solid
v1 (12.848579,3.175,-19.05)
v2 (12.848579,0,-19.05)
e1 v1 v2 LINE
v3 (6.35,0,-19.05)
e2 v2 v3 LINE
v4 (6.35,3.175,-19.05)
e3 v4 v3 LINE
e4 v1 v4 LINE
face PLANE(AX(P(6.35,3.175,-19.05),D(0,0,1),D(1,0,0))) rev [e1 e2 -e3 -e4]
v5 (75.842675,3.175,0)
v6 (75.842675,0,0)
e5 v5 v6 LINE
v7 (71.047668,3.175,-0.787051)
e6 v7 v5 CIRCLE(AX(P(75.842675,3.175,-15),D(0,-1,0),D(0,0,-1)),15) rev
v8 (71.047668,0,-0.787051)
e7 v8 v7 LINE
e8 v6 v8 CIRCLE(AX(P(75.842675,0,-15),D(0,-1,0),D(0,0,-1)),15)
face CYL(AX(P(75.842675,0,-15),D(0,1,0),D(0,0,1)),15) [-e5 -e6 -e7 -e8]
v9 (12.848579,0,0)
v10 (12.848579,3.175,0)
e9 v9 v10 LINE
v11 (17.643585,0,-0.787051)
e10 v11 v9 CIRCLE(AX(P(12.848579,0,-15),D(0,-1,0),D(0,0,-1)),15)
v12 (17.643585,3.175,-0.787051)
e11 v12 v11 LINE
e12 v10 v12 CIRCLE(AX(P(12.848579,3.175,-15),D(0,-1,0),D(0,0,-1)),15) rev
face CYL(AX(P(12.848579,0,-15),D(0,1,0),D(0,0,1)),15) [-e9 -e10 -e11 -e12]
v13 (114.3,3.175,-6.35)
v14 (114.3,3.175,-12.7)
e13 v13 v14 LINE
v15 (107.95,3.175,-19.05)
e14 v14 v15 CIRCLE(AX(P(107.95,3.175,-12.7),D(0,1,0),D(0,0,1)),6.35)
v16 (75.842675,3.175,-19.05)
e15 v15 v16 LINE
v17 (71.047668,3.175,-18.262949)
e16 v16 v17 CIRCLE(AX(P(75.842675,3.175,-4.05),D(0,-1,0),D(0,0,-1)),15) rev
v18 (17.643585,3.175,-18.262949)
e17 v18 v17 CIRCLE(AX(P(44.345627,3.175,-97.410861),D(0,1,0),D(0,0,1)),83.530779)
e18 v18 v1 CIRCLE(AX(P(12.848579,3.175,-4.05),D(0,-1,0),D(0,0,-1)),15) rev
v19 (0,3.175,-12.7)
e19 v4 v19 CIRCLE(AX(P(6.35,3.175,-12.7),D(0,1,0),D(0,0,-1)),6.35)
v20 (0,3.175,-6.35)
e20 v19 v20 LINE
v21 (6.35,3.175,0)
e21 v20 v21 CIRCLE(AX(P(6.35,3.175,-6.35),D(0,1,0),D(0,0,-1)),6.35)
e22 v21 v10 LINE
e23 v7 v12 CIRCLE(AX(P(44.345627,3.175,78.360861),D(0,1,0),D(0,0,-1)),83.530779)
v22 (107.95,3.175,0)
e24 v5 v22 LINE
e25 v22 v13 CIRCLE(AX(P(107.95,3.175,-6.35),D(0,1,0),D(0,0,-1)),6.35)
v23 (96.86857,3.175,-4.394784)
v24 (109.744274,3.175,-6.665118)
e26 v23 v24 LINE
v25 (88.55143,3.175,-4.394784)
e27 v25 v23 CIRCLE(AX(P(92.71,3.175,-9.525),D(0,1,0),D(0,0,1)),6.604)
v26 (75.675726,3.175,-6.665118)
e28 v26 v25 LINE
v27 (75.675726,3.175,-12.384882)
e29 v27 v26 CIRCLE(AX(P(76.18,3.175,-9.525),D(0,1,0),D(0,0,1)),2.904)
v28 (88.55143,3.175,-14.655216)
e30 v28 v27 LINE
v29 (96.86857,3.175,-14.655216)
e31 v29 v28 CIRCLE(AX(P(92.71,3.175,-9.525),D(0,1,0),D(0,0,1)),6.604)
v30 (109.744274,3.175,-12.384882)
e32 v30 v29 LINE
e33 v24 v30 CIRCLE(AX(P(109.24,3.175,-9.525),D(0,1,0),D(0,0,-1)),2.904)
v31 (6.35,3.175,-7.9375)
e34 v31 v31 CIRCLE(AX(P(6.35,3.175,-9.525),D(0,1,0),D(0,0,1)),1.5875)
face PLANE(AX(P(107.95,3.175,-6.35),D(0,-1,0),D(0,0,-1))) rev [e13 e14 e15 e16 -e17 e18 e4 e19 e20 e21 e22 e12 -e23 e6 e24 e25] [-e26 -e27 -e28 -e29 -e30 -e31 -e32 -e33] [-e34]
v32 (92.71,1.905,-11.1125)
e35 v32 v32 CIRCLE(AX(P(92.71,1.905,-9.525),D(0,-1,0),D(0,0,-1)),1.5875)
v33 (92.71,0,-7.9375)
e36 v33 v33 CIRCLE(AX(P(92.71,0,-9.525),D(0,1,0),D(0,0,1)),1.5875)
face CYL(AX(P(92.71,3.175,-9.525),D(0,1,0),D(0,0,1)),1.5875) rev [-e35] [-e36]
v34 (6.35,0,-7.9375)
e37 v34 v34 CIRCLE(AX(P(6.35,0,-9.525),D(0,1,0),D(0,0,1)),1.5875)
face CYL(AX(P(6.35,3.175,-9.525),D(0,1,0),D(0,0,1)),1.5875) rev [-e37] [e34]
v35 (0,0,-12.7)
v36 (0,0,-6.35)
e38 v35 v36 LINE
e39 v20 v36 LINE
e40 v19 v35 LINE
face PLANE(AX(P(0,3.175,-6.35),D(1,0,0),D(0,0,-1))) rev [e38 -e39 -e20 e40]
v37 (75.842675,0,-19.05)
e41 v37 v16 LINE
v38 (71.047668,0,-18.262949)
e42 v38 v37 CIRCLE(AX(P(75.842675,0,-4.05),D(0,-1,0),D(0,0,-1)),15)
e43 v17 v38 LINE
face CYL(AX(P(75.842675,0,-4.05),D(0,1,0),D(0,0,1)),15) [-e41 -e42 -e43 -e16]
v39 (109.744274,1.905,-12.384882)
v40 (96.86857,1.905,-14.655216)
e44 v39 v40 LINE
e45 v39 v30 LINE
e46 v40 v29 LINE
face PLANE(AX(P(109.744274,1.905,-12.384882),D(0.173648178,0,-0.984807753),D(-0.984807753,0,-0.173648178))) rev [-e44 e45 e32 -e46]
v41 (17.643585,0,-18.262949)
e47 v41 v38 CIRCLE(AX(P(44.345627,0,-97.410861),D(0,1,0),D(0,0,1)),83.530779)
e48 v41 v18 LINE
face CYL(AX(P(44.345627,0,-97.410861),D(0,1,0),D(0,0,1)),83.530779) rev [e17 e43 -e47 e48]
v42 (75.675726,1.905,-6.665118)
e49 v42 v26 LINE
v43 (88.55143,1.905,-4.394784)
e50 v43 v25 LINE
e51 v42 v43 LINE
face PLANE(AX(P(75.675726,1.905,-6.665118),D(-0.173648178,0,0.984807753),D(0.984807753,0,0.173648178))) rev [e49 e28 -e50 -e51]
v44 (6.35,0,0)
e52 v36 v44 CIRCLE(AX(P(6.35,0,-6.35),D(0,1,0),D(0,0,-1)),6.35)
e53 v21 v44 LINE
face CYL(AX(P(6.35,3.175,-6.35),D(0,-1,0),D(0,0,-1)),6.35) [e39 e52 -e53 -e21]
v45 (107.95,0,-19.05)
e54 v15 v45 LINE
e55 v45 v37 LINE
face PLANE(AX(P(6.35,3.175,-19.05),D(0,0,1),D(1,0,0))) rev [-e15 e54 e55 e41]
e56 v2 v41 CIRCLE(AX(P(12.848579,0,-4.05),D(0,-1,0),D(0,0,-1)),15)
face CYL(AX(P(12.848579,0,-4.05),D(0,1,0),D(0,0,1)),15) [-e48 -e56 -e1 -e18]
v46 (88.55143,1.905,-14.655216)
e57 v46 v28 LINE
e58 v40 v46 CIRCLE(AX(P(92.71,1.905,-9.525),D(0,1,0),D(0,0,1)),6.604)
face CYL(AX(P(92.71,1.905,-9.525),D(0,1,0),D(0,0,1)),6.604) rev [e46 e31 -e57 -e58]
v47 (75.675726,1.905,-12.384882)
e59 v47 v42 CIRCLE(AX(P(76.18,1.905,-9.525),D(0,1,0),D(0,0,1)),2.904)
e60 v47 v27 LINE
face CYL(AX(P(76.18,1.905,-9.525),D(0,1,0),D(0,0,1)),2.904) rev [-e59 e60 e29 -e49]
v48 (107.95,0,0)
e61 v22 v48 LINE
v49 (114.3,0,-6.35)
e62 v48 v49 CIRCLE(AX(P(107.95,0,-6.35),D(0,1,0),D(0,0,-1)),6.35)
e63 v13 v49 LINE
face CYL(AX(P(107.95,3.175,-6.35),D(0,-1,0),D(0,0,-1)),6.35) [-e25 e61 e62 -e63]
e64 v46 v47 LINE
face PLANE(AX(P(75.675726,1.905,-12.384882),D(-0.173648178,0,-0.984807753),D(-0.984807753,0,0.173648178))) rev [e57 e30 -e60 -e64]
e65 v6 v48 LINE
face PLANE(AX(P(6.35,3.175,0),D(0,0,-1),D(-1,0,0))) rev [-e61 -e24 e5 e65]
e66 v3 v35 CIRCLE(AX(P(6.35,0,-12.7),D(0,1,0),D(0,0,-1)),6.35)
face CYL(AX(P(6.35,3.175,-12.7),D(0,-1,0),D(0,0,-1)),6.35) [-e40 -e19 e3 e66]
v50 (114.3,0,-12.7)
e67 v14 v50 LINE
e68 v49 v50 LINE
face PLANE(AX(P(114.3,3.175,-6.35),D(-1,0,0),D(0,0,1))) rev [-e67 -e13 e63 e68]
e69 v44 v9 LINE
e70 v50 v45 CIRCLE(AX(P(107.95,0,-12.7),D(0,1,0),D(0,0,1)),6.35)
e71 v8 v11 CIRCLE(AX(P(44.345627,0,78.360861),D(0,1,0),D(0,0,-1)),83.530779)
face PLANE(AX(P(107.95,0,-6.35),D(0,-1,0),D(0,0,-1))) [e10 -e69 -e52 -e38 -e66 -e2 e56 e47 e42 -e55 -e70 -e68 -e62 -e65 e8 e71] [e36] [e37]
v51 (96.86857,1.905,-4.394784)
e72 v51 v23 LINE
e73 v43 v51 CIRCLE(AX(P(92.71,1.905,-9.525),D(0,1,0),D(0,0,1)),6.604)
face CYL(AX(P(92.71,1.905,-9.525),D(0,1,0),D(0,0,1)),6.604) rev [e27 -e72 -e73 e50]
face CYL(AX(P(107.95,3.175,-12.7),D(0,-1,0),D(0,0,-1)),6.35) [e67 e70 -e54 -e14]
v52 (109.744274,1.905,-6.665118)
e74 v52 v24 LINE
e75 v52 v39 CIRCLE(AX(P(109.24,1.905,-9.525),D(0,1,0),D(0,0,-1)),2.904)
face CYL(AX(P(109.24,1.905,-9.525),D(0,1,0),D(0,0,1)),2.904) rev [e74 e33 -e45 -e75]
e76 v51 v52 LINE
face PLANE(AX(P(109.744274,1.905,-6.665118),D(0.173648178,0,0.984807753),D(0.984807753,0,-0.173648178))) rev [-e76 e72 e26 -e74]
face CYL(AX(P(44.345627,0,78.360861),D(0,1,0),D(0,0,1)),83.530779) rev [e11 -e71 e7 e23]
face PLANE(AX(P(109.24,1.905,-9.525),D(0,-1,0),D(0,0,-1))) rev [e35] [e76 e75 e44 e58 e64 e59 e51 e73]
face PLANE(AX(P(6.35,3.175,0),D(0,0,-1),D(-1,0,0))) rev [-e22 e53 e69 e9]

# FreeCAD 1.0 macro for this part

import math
import FreeCAD as App
import Part
import Sketcher

V = App.Vector
Q = App.Units.Quantity


def edges_at(feature, points):
    """Names of the edges that pass closest to the given points."""
    edges = feature.Shape.Edges
    near = lambda p: min(range(len(edges)), key=lambda i: edges[i].distToShape(Part.Vertex(*p))[0])
    return sorted({f"Edge{near(p) + 1}" for p in points})

doc = App.newDocument("Part")
params = doc.addObject("Spreadsheet::Sheet", "Params")
for row, (alias, value) in enumerate([
    ("sketch1_width", "4 in"),
    ("sketch1_radius", "0.25 in"),
    ("sketch1_height", "0.25 in"),
    ("pad1_length", "0.125 in"),
    ("sketch2_radius", "0.26 in"),
    ("pocket1_length", "0.05 in"),
    ("sketch3_diameter", "0.125 in"),
    ("hole_diameter", "0.125 in"),
    ("fillet_radius", "15 mm"),
    ("sketch5_diameter", "0.125 in"),
    ("hole2_diameter", "0.125 in"),
], start=1):
    params.set(f"A{row}", alias)
    params.set(f"B{row}", "=" + value)
    params.setAlias(f"B{row}", alias)

body = doc.addObject("PartDesign::Body", "Body")

# Sketch on XZ plane
sketch1 = body.newObject("Sketcher::SketchObject", "Sketch")
sketch1.AttachmentSupport = (doc.getObject("XZ_Plane"), [""])
sketch1.MapMode = "FlatFace"
sketch1.addGeometry(Part.LineSegment(V(6.35, 0, 0), V(107.95, 0, 0)), False)
sketch1.addGeometry(Part.ArcOfCircle(Part.Circle(V(107.95, -6.35, 0), V(0, 0, 1), 6.35), math.radians(0), math.radians(90)), False)
sketch1.addGeometry(Part.LineSegment(V(114.3, -6.35, 0), V(114.3, -12.7, 0)), False)
sketch1.addGeometry(Part.ArcOfCircle(Part.Circle(V(107.95, -12.7, 0), V(0, 0, 1), 6.35), math.radians(-90), math.radians(0)), False)
sketch1.addGeometry(Part.LineSegment(V(107.95, -19.05, 0), V(6.35, -19.05, 0)), False)
sketch1.addGeometry(Part.ArcOfCircle(Part.Circle(V(6.35, -12.7, 0), V(0, 0, 1), 6.35), math.radians(180), math.radians(270)), False)
sketch1.addGeometry(Part.LineSegment(V(0, -12.7, 0), V(0, -6.35, 0)), False)
sketch1.addGeometry(Part.ArcOfCircle(Part.Circle(V(6.35, -6.35, 0), V(0, 0, 1), 6.35), math.radians(90), math.radians(180)), False)
sketch1.addConstraint(Sketcher.Constraint("Tangent", 0, 2, 1, 2))
sketch1.addConstraint(Sketcher.Constraint("Tangent", 1, 1, 2, 1))
sketch1.addConstraint(Sketcher.Constraint("Tangent", 2, 2, 3, 2))
sketch1.addConstraint(Sketcher.Constraint("Tangent", 3, 1, 4, 1))
sketch1.addConstraint(Sketcher.Constraint("Tangent", 4, 2, 5, 2))
sketch1.addConstraint(Sketcher.Constraint("Tangent", 5, 1, 6, 1))
sketch1.addConstraint(Sketcher.Constraint("Tangent", 6, 2, 7, 2))
sketch1.addConstraint(Sketcher.Constraint("Tangent", 7, 1, 0, 1))
sketch1.addConstraint(Sketcher.Constraint("Horizontal", 0))
sketch1.addConstraint(Sketcher.Constraint("Vertical", 2))
sketch1.addConstraint(Sketcher.Constraint("Horizontal", 4))
sketch1.addConstraint(Sketcher.Constraint("Vertical", 6))
sketch1.addConstraint(Sketcher.Constraint("Equal", 1, 3))
sketch1.addConstraint(Sketcher.Constraint("Equal", 3, 5))
sketch1.addConstraint(Sketcher.Constraint("Equal", 5, 7))
sketch1.addConstraint(Sketcher.Constraint("PointOnObject", 0, 2, -1))
sketch1.addConstraint(Sketcher.Constraint("PointOnObject", 5, 1, -2))
sketch1.addConstraint(Sketcher.Constraint("DistanceX", 0, 1, 0, 2, Q("4 in")))
sketch1.addConstraint(Sketcher.Constraint("Radius", 1, Q("0.25 in")))
sketch1.addConstraint(Sketcher.Constraint("DistanceY", 2, 2, 2, 1, Q("0.25 in")))
sketch1.setExpression("Constraints[17]", "Params.sketch1_width")
sketch1.setExpression("Constraints[18]", "Params.sketch1_radius")
sketch1.setExpression("Constraints[19]", "Params.sketch1_height")
pad1 = body.newObject("PartDesign::Pad", "Pad")
pad1.Profile = sketch1
pad1.setExpression("Length", "Params.pad1_length")
pad1.Reversed = True

# Sketch on XZ plane
sketch2 = body.newObject("Sketcher::SketchObject", "Sketch001")
sketch2.AttachmentSupport = (doc.getObject("XZ_Plane"), [""])
sketch2.MapMode = "FlatFace"
sketch2.AttachmentOffset = App.Placement(V(0, 0, -0.125 * 25.4), App.Rotation())
sketch2.addGeometry(Part.LineSegment(V(109.744274, -12.384882, 0), V(96.86857, -14.655216, 0)), False)
sketch2.addGeometry(Part.ArcOfCircle(Part.Circle(V(92.71, -9.525, 0), V(0, 0, 1), 6.604), math.radians(-129.028337), math.radians(-50.971663)), False)
sketch2.addGeometry(Part.LineSegment(V(88.55143, -14.655216, 0), V(75.675726, -12.384882, 0)), False)
sketch2.addGeometry(Part.ArcOfCircle(Part.Circle(V(76.18, -9.525, 0), V(0, 0, 1), 2.904), math.radians(100), math.radians(260)), False)
sketch2.addGeometry(Part.LineSegment(V(75.675726, -6.665118, 0), V(88.55143, -4.394784, 0)), False)
sketch2.addGeometry(Part.ArcOfCircle(Part.Circle(V(92.71, -9.525, 0), V(0, 0, 1), 6.604), math.radians(50.971663), math.radians(129.028337)), False)
sketch2.addGeometry(Part.LineSegment(V(96.86857, -4.394784, 0), V(109.744274, -6.665118, 0)), False)
sketch2.addGeometry(Part.ArcOfCircle(Part.Circle(V(109.24, -9.525, 0), V(0, 0, 1), 2.904), math.radians(-80), math.radians(80)), False)
sketch2.addConstraint(Sketcher.Constraint("Coincident", 0, 2, 1, 2))
sketch2.addConstraint(Sketcher.Constraint("Coincident", 1, 1, 2, 1))
sketch2.addConstraint(Sketcher.Constraint("Tangent", 2, 2, 3, 2))
sketch2.addConstraint(Sketcher.Constraint("Tangent", 3, 1, 4, 1))
sketch2.addConstraint(Sketcher.Constraint("Coincident", 4, 2, 5, 2))
sketch2.addConstraint(Sketcher.Constraint("Coincident", 5, 1, 6, 1))
sketch2.addConstraint(Sketcher.Constraint("Tangent", 6, 2, 7, 2))
sketch2.addConstraint(Sketcher.Constraint("Tangent", 7, 1, 0, 1))
sketch2.addConstraint(Sketcher.Constraint("Coincident", 5, 3, 1, 3))
sketch2.addConstraint(Sketcher.Constraint("Equal", 1, 5))
sketch2.addConstraint(Sketcher.Constraint("Equal", 3, 7))
sketch2.addConstraint(Sketcher.Constraint("Parallel", 0, 4))
sketch2.addConstraint(Sketcher.Constraint("Parallel", 2, 6))
sketch2.addConstraint(Sketcher.Constraint("Horizontal", 1, 3, 3, 3))
sketch2.addConstraint(Sketcher.Constraint("Horizontal", 5, 3, 7, 3))
sketch2.addConstraint(Sketcher.Constraint("Horizontal", 0, 2, 1, 1))
sketch2.addConstraint(Sketcher.Constraint("Horizontal", 4, 2, 5, 1))
sketch2.addConstraint(Sketcher.Constraint("Radius", 1, Q("0.26 in")))
sketch2.addConstraint(Sketcher.Constraint("Angle", 0, Q("-170 deg")))
sketch2.addConstraint(Sketcher.Constraint("DistanceX", -1, 1, 1, 3, Q("3.65 in")))
sketch2.addConstraint(Sketcher.Constraint("Radius", 3, 2.904))
sketch2.addConstraint(Sketcher.Constraint("DistanceY", 1, 3, -1, 1, Q("0.375 in")))
sketch2.addConstraint(Sketcher.Constraint("DistanceX", -1, 1, 3, 3, 76.18))
sketch2.setExpression("Constraints[17]", "Params.sketch2_radius")
pocket1 = body.newObject("PartDesign::Pocket", "Pocket")
pocket1.Profile = sketch2
pocket1.setExpression("Length", "Params.pocket1_length")
pocket1.Reversed = True

# Sketch on XZ plane
sketch3 = body.newObject("Sketcher::SketchObject", "Sketch002")
sketch3.AttachmentSupport = (doc.getObject("XZ_Plane"), [""])
sketch3.MapMode = "FlatFace"
sketch3.AttachmentOffset = App.Placement(V(0, 0, -0.125 * 25.4), App.Rotation())
sketch3.addGeometry(Part.Circle(V(6.35, -9.525, 0), V(0, 0, 1), 1.5875), False)
sketch3.addConstraint(Sketcher.Constraint("Diameter", 0, Q("0.125 in")))
sketch3.addConstraint(Sketcher.Constraint("DistanceX", -1, 1, 0, 3, Q("0.25 in")))
sketch3.addConstraint(Sketcher.Constraint("DistanceY", 0, 3, -1, 1, Q("0.375 in")))
sketch3.setExpression("Constraints[0]", "Params.sketch3_diameter")
doc.recompute()
hole = body.newObject("PartDesign::Hole", "Hole")
hole.Profile = sketch3
hole.ThreadType = "None"
hole.setExpression("Diameter", "Params.hole_diameter")
hole.DepthType = "ThroughAll"
hole.Reversed = True

# Sketch on XZ plane
sketch4 = body.newObject("Sketcher::SketchObject", "Sketch003")
sketch4.AttachmentSupport = (doc.getObject("XZ_Plane"), [""])
sketch4.MapMode = "FlatFace"
sketch4.AttachmentOffset = App.Placement(V(0, 0, -0.125 * 25.4), App.Rotation())
sketch4.addGeometry(Part.LineSegment(V(73.276, -19.05, 0), V(15.415254, -19.05, 0)), False)
sketch4.addGeometry(Part.ArcOfCircle(Part.Circle(V(44.345627, -97.410861, 0), V(0, 0, 1), 83.530779), math.radians(69.736148), math.radians(110.263852)), False)
sketch4.addGeometry(Part.LineSegment(V(15.415254, 0, 0), V(73.276, 0, 0)), False)
sketch4.addGeometry(Part.ArcOfCircle(Part.Circle(V(44.345627, 78.360861, 0), V(0, 0, 1), 83.530779), math.radians(-110.263852), math.radians(-69.736148)), False)
sketch4.addConstraint(Sketcher.Constraint("Coincident", 0, 1, 1, 1))
sketch4.addConstraint(Sketcher.Constraint("Coincident", 1, 2, 0, 2))
sketch4.addConstraint(Sketcher.Constraint("Coincident", 2, 1, 3, 1))
sketch4.addConstraint(Sketcher.Constraint("Coincident", 3, 2, 2, 2))
sketch4.addConstraint(Sketcher.Constraint("Horizontal", 0))
sketch4.addConstraint(Sketcher.Constraint("Horizontal", 2))
sketch4.addConstraint(Sketcher.Constraint("Equal", 1, 3))
sketch4.addConstraint(Sketcher.Constraint("PointOnObject", 2, 1, -1))
sketch4.addConstraint(Sketcher.Constraint("Vertical", 1, 3, 3, 3))
sketch4.addConstraint(Sketcher.Constraint("Vertical", 1, 2, 2, 1))
sketch4.addConstraint(Sketcher.Constraint("DistanceY", 0, 1, -1, 1, Q("0.75 in")))
sketch4.addConstraint(Sketcher.Constraint("Radius", 1, 83.530779))
sketch4.addConstraint(Sketcher.Constraint("DistanceX", -1, 1, 0, 1, 73.276))
sketch4.addConstraint(Sketcher.Constraint("DistanceX", 0, 2, 0, 1, 57.860746))
pocket2 = body.newObject("PartDesign::Pocket", "Pocket001")
pocket2.Profile = sketch4
pocket2.Type = "ThroughAll"
pocket2.Reversed = True
doc.recompute()

fillet = body.newObject("PartDesign::Fillet", "Fillet")
fillet.Base = (pocket2, edges_at(pocket2, [
    (73.276, 1.587, -19.05),
    (15.415, 1.587, -19.05),
    (15.415, 1.587, 0),
    (73.276, 1.587, 0),
]))
fillet.setExpression("Radius", "Params.fillet_radius")

# Sketch on XZ plane
sketch5 = body.newObject("Sketcher::SketchObject", "Sketch004")
sketch5.AttachmentSupport = (doc.getObject("XZ_Plane"), [""])
sketch5.MapMode = "FlatFace"
sketch5.AttachmentOffset = App.Placement(V(0, 0, -0.125 * 25.4), App.Rotation())
sketch5.addGeometry(Part.Circle(V(92.71, -9.525, 0), V(0, 0, 1), 1.5875), False)
sketch5.addConstraint(Sketcher.Constraint("Diameter", 0, Q("0.125 in")))
sketch5.addConstraint(Sketcher.Constraint("DistanceX", -1, 1, 0, 3, Q("3.65 in")))
sketch5.addConstraint(Sketcher.Constraint("DistanceY", 0, 3, -1, 1, Q("0.375 in")))
sketch5.setExpression("Constraints[0]", "Params.sketch5_diameter")
doc.recompute()
hole2 = body.newObject("PartDesign::Hole", "Hole001")
hole2.Profile = sketch5
hole2.ThreadType = "None"
hole2.setExpression("Diameter", "Params.hole2_diameter")
hole2.DepthType = "ThroughAll"
hole2.Reversed = True

doc.recompute()
